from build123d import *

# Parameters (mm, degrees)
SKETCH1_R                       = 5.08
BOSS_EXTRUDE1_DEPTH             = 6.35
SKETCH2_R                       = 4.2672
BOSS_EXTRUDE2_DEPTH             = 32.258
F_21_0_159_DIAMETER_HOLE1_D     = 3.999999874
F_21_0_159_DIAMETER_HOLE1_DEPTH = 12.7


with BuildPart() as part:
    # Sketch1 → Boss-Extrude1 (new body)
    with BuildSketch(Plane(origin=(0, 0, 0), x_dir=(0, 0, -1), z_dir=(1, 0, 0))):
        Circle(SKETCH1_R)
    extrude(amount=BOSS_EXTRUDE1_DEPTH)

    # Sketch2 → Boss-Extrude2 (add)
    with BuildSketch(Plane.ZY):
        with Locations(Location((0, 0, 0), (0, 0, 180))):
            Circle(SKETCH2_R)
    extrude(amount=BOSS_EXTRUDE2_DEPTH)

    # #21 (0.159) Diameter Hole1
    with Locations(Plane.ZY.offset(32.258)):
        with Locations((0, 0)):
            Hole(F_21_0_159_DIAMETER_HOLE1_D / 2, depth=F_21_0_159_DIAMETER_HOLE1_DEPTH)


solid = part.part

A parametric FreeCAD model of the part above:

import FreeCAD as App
import Part
import Sketcher
Q = App.Units.Quantity

doc = App.newDocument("Part")
body = doc.addObject("PartDesign::Body", "Body")

sketch1 = doc.addObject("Sketcher::SketchObject", "Sketch")
body.addObject(sketch1)
sketch1.AttachmentSupport = (doc.YZ_Plane, [""])
sketch1.MapMode = "FlatFace"
sketch1.addGeometry(Part.Circle(App.Vector(0, 0, 0), App.Vector(0, 0, 1), 5), False)
sketch1.addConstraint([
    Sketcher.Constraint("Coincident", 0, 3, -1, 1),
    Sketcher.Constraint("Diameter", 0, Q("0.4 in")),
])
pad1 = doc.addObject("PartDesign::Pad", "Pad")
body.addObject(pad1)
pad1.Profile = sketch1
pad1.Length = Q("0.25 in")

sketch2 = doc.addObject("Sketcher::SketchObject", "Sketch001")
body.addObject(sketch2)
sketch2.AttachmentSupport = (doc.YZ_Plane, [""])
sketch2.MapMode = "FlatFace"
sketch2.addGeometry(Part.Circle(App.Vector(0, 0, 0), App.Vector(0, 0, 1), 4.3), False)
sketch2.addConstraint([
    Sketcher.Constraint("Coincident", 0, 3, -1, 1),
    Sketcher.Constraint("Diameter", 0, Q("0.336 in")),
])
pad2 = doc.addObject("PartDesign::Pad", "Pad001")
body.addObject(pad2)
pad2.Profile = sketch2
pad2.Length = Q("1.27 in")
pad2.Reversed = True

sketch3 = doc.addObject("Sketcher::SketchObject", "Sketch002")
body.addObject(sketch3)
sketch3.AttachmentSupport = (doc.YZ_Plane, [""])
sketch3.MapMode = "FlatFace"
sketch3.AttachmentOffset = App.Placement(App.Vector(0, 0, -1.27 * 25.4), App.Rotation())
sketch3.addGeometry(Part.Circle(App.Vector(0, 0, 0), App.Vector(0, 0, 1), 2), False)
sketch3.addConstraint([
    Sketcher.Constraint("Coincident", 0, 3, -1, 1),
    Sketcher.Constraint("Diameter", 0, Q("4 mm")),
])
doc.recompute()
hole = doc.addObject("PartDesign::Hole", "Hole")
body.addObject(hole)
hole.Profile = sketch3
hole.ThreadType = "None"
hole.Diameter = 4
hole.DepthType = "Dimension"
hole.Depth = Q("0.5 in")
hole.DrillPoint = "Flat"
hole.Reversed = True

doc.recompute()
